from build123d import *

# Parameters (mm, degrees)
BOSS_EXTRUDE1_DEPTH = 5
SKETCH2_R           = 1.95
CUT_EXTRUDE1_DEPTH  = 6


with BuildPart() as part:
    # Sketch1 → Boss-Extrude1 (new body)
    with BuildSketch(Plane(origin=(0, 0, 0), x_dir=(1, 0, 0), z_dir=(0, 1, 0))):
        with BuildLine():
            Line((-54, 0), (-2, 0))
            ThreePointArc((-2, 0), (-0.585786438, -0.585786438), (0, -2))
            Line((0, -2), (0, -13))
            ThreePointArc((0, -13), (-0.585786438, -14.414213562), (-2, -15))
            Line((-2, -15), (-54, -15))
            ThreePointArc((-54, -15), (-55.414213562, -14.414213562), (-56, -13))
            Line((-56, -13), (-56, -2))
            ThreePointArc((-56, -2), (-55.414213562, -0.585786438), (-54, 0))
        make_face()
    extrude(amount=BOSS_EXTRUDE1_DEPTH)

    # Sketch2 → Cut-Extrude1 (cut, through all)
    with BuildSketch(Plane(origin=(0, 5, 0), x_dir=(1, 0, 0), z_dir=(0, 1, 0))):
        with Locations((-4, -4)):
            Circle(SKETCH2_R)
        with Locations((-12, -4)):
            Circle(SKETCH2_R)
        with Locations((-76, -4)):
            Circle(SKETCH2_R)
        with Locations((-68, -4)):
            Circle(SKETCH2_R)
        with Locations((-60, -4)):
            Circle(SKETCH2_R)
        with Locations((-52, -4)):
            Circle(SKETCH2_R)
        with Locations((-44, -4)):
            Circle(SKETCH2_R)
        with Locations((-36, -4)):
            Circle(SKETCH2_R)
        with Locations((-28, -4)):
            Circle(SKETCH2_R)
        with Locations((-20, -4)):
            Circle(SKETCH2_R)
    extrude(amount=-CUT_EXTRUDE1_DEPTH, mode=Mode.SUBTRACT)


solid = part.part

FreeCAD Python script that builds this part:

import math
import FreeCAD as App
import Part
import Sketcher
Q = App.Units.Quantity

doc = App.newDocument("Part")
body = doc.addObject("PartDesign::Body", "Body")

# Sketch on XZ plane
sketch1 = body.newObject("Sketcher::SketchObject", "Sketch")
sketch1.AttachmentSupport = (doc.getObject("XZ_Plane"), [""])
sketch1.MapMode = "FlatFace"
sketch1.addGeometry(Part.LineSegment(App.Vector(-2, 0, 0), App.Vector(-54, 0, 0)), False)
sketch1.addGeometry(Part.ArcOfCircle(Part.Circle(App.Vector(-54, 2, 0), App.Vector(0, 0, 1), 2), math.radians(-180), math.radians(-90)), False)
sketch1.addGeometry(Part.LineSegment(App.Vector(-56, 2, 0), App.Vector(-56, 13, 0)), False)
sketch1.addGeometry(Part.ArcOfCircle(Part.Circle(App.Vector(-54, 13, 0), App.Vector(0, 0, 1), 2), math.radians(90), math.radians(180)), False)
sketch1.addGeometry(Part.LineSegment(App.Vector(-54, 15, 0), App.Vector(-2, 15, 0)), False)
sketch1.addGeometry(Part.ArcOfCircle(Part.Circle(App.Vector(-2, 13, 0), App.Vector(0, 0, 1), 2), math.radians(0), math.radians(90)), False)
sketch1.addGeometry(Part.LineSegment(App.Vector(0, 13, 0), App.Vector(0, 2, 0)), False)
sketch1.addGeometry(Part.ArcOfCircle(Part.Circle(App.Vector(-2, 2, 0), App.Vector(0, 0, 1), 2), math.radians(-90), math.radians(0)), False)
sketch1.addConstraint(Sketcher.Constraint("Tangent", 0, 2, 1, 2))
sketch1.addConstraint(Sketcher.Constraint("Tangent", 1, 1, 2, 1))
sketch1.addConstraint(Sketcher.Constraint("Tangent", 2, 2, 3, 2))
sketch1.addConstraint(Sketcher.Constraint("Tangent", 3, 1, 4, 1))
sketch1.addConstraint(Sketcher.Constraint("Tangent", 4, 2, 5, 2))
sketch1.addConstraint(Sketcher.Constraint("Tangent", 5, 1, 6, 1))
sketch1.addConstraint(Sketcher.Constraint("Tangent", 6, 2, 7, 2))
sketch1.addConstraint(Sketcher.Constraint("Tangent", 7, 1, 0, 1))
sketch1.addConstraint(Sketcher.Constraint("Horizontal", 0))
sketch1.addConstraint(Sketcher.Constraint("Vertical", 2))
sketch1.addConstraint(Sketcher.Constraint("Horizontal", 4))
sketch1.addConstraint(Sketcher.Constraint("Vertical", 6))
sketch1.addConstraint(Sketcher.Constraint("Equal", 1, 3))
sketch1.addConstraint(Sketcher.Constraint("Equal", 3, 5))
sketch1.addConstraint(Sketcher.Constraint("Equal", 5, 7))
sketch1.addConstraint(Sketcher.Constraint("PointOnObject", 0, 2, -1))
sketch1.addConstraint(Sketcher.Constraint("PointOnObject", 5, 1, -2))
sketch1.addConstraint(Sketcher.Constraint("Radius", 1, Q("2 mm")))
sketch1.addConstraint(Sketcher.Constraint("DistanceX", 0, 2, 0, 1, Q("52 mm")))
sketch1.addConstraint(Sketcher.Constraint("DistanceY", 2, 1, 2, 2, Q("11 mm")))
pad1 = body.newObject("PartDesign::Pad", "Pad")
pad1.Profile = sketch1
pad1.Length = 5
pad1.Reversed = True

# Sketch on XZ plane
sketch2 = body.newObject("Sketcher::SketchObject", "Sketch001")
sketch2.AttachmentSupport = (doc.getObject("XZ_Plane"), [""])
sketch2.MapMode = "FlatFace"
sketch2.AttachmentOffset = App.Placement(App.Vector(0, 0, -5), App.Rotation())
sketch2.addGeometry(Part.Circle(App.Vector(-4, 4, 0), App.Vector(0, 0, 1), 1.95), False)
sketch2.addGeometry(Part.Circle(App.Vector(-12, 4, 0), App.Vector(0, 0, 1), 1.95), False)
sketch2.addGeometry(Part.Circle(App.Vector(-76, 4, 0), App.Vector(0, 0, 1), 1.95), False)
sketch2.addGeometry(Part.Circle(App.Vector(-68, 4, 0), App.Vector(0, 0, 1), 1.95), False)
sketch2.addGeometry(Part.Circle(App.Vector(-60, 4, 0), App.Vector(0, 0, 1), 1.95), False)
sketch2.addGeometry(Part.Circle(App.Vector(-52, 4, 0), App.Vector(0, 0, 1), 1.95), False)
sketch2.addGeometry(Part.Circle(App.Vector(-44, 4, 0), App.Vector(0, 0, 1), 1.95), False)
sketch2.addGeometry(Part.Circle(App.Vector(-36, 4, 0), App.Vector(0, 0, 1), 1.95), False)
sketch2.addGeometry(Part.Circle(App.Vector(-28, 4, 0), App.Vector(0, 0, 1), 1.95), False)
sketch2.addGeometry(Part.Circle(App.Vector(-20, 4, 0), App.Vector(0, 0, 1), 1.95), False)
sketch2.addConstraint(Sketcher.Constraint("Equal", 0, 1))
sketch2.addConstraint(Sketcher.Constraint("Equal", 1, 2))
sketch2.addConstraint(Sketcher.Constraint("Equal", 2, 3))
sketch2.addConstraint(Sketcher.Constraint("Equal", 3, 4))
sketch2.addConstraint(Sketcher.Constraint("Equal", 4, 5))
sketch2.addConstraint(Sketcher.Constraint("Equal", 5, 6))
sketch2.addConstraint(Sketcher.Constraint("Equal", 6, 7))
sketch2.addConstraint(Sketcher.Constraint("Equal", 7, 8))
sketch2.addConstraint(Sketcher.Constraint("Equal", 8, 9))
sketch2.addConstraint(Sketcher.Constraint("Horizontal", 0, 3, 1, 3))
sketch2.addConstraint(Sketcher.Constraint("Horizontal", 1, 3, 2, 3))
sketch2.addConstraint(Sketcher.Constraint("Horizontal", 2, 3, 3, 3))
sketch2.addConstraint(Sketcher.Constraint("Horizontal", 3, 3, 4, 3))
sketch2.addConstraint(Sketcher.Constraint("Horizontal", 4, 3, 5, 3))
sketch2.addConstraint(Sketcher.Constraint("Horizontal", 5, 3, 6, 3))
sketch2.addConstraint(Sketcher.Constraint("Horizontal", 6, 3, 7, 3))
sketch2.addConstraint(Sketcher.Constraint("Horizontal", 7, 3, 8, 3))
sketch2.addConstraint(Sketcher.Constraint("Horizontal", 8, 3, 9, 3))
sketch2.addConstraint(Sketcher.Constraint("Diameter", 0, Q("3.9 mm")))
sketch2.addConstraint(Sketcher.Constraint("DistanceX", 0, 3, -1, 1, Q("4 mm")))
sketch2.addConstraint(Sketcher.Constraint("DistanceY", -1, 1, 0, 3, Q("4 mm")))
sketch2.addConstraint(Sketcher.Constraint("DistanceX", 1, 3, -1, 1, Q("12 mm")))
sketch2.addConstraint(Sketcher.Constraint("DistanceX", 2, 3, -1, 1, Q("76 mm")))
sketch2.addConstraint(Sketcher.Constraint("DistanceX", 3, 3, -1, 1, Q("68 mm")))
sketch2.addConstraint(Sketcher.Constraint("DistanceX", 4, 3, -1, 1, Q("60 mm")))
sketch2.addConstraint(Sketcher.Constraint("DistanceX", 5, 3, -1, 1, Q("52 mm")))
sketch2.addConstraint(Sketcher.Constraint("DistanceX", 6, 3, -1, 1, Q("44 mm")))
sketch2.addConstraint(Sketcher.Constraint("DistanceX", 7, 3, -1, 1, Q("36 mm")))
sketch2.addConstraint(Sketcher.Constraint("DistanceX", 8, 3, -1, 1, Q("28 mm")))
sketch2.addConstraint(Sketcher.Constraint("DistanceX", 9, 3, -1, 1, Q("20 mm")))
pocket1 = body.newObject("PartDesign::Pocket", "Pocket")
pocket1.Profile = sketch2
pocket1.Type = "ThroughAll"
pocket1.Reversed = True

doc.recompute()
